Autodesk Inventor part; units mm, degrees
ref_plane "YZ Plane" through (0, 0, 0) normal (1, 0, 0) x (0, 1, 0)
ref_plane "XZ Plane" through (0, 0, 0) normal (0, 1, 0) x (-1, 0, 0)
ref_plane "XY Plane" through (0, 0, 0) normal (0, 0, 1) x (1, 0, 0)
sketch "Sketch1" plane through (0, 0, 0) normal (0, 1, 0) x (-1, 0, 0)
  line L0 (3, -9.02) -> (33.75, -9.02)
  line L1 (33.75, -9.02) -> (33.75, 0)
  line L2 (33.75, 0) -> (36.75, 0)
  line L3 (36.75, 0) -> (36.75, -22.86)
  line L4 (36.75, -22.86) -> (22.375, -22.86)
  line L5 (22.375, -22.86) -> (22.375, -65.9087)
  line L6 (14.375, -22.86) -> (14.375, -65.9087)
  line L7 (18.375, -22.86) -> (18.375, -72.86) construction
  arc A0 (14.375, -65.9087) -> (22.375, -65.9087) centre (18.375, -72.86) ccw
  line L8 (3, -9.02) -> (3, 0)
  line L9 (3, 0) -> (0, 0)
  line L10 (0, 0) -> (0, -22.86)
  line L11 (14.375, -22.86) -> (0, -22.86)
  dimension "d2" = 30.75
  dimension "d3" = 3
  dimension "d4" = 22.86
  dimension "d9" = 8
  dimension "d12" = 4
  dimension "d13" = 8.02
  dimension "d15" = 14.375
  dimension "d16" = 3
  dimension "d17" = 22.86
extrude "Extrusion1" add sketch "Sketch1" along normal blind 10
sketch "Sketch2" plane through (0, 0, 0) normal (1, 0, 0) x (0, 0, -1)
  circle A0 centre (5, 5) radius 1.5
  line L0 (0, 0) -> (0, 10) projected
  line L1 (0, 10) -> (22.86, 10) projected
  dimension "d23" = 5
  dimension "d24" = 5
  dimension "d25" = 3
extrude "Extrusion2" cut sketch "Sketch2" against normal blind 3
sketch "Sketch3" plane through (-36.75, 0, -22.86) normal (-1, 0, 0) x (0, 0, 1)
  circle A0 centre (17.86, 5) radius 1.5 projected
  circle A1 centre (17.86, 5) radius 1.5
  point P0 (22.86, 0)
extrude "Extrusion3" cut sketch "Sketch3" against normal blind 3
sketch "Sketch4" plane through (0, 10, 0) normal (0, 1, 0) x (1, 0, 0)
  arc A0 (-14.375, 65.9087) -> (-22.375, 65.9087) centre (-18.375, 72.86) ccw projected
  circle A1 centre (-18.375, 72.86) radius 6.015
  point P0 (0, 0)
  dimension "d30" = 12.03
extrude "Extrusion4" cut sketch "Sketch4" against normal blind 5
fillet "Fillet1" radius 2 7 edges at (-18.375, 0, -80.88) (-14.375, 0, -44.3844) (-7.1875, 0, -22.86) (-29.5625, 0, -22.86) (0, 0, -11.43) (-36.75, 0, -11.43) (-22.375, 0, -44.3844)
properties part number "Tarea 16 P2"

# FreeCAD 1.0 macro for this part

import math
import FreeCAD as App
import Part
import Sketcher


def edges_at(feature, points):
    """Names of the edges that pass closest to the given points."""
    edges = feature.Shape.Edges
    near = lambda p: min(range(len(edges)), key=lambda i: edges[i].distToShape(Part.Vertex(*p))[0])
    return sorted({f"Edge{near(p) + 1}" for p in points})

doc = App.newDocument("Part")
body = doc.addObject("PartDesign::Body", "Body")

# Sketch on XZ plane
sketch1 = body.newObject("Sketcher::SketchObject", "Sketch")
sketch1.AttachmentSupport = (doc.getObject("XZ_Plane"), [""])
sketch1.MapMode = "FlatFace"
sketch1.addGeometry(Part.LineSegment(App.Vector(-33.8, -9, 0), App.Vector(-3, -9, 0)), False)
sketch1.addGeometry(Part.LineSegment(App.Vector(-3, -9, 0), App.Vector(-3, 0, 0)), False)
sketch1.addGeometry(Part.LineSegment(App.Vector(-3, 0, 0), App.Vector(0, 0, 0)), False)
sketch1.addGeometry(Part.LineSegment(App.Vector(0, 0, 0), App.Vector(0, -22.9, 0)), False)
sketch1.addGeometry(Part.LineSegment(App.Vector(0, -22.9, 0), App.Vector(-14.4, -22.9, 0)), False)
sketch1.addGeometry(Part.LineSegment(App.Vector(-14.4, -22.9, 0), App.Vector(-14.4, -65.9, 0)), False)
sketch1.addGeometry(Part.ArcOfCircle(Part.Circle(App.Vector(-18.4, -72.9, 0), App.Vector(0, 0, 1), 8), math.radians(120), math.radians(420)), False)
sketch1.addGeometry(Part.LineSegment(App.Vector(-22.4, -65.9, 0), App.Vector(-22.4, -22.9, 0)), False)
sketch1.addGeometry(Part.LineSegment(App.Vector(-22.4, -22.9, 0), App.Vector(-36.8, -22.9, 0)), False)
sketch1.addGeometry(Part.LineSegment(App.Vector(-36.8, -22.9, 0), App.Vector(-36.8, 0, 0)), False)
sketch1.addGeometry(Part.LineSegment(App.Vector(-36.8, 0, 0), App.Vector(-33.8, 0, 0)), False)
sketch1.addGeometry(Part.LineSegment(App.Vector(-33.8, 0, 0), App.Vector(-33.8, -9, 0)), False)
sketch1.addConstraint(Sketcher.Constraint("Coincident", 0, 2, 1, 1))
sketch1.addConstraint(Sketcher.Constraint("Coincident", 1, 2, 2, 1))
sketch1.addConstraint(Sketcher.Constraint("Coincident", 2, 2, 3, 1))
sketch1.addConstraint(Sketcher.Constraint("Coincident", 3, 2, 4, 1))
sketch1.addConstraint(Sketcher.Constraint("Coincident", 4, 2, 5, 1))
sketch1.addConstraint(Sketcher.Constraint("Coincident", 5, 2, 6, 2))
sketch1.addConstraint(Sketcher.Constraint("Coincident", 6, 1, 7, 1))
sketch1.addConstraint(Sketcher.Constraint("Coincident", 7, 2, 8, 1))
sketch1.addConstraint(Sketcher.Constraint("Coincident", 8, 2, 9, 1))
sketch1.addConstraint(Sketcher.Constraint("Coincident", 9, 2, 10, 1))
sketch1.addConstraint(Sketcher.Constraint("Coincident", 10, 2, 11, 1))
sketch1.addConstraint(Sketcher.Constraint("Coincident", 11, 2, 0, 1))
sketch1.addConstraint(Sketcher.Constraint("Horizontal", 0))
sketch1.addConstraint(Sketcher.Constraint("Vertical", 1))
sketch1.addConstraint(Sketcher.Constraint("Horizontal", 2))
sketch1.addConstraint(Sketcher.Constraint("Vertical", 3))
sketch1.addConstraint(Sketcher.Constraint("Horizontal", 4))
sketch1.addConstraint(Sketcher.Constraint("Vertical", 5))
sketch1.addConstraint(Sketcher.Constraint("Vertical", 7))
sketch1.addConstraint(Sketcher.Constraint("Horizontal", 8))
sketch1.addConstraint(Sketcher.Constraint("Vertical", 9))
sketch1.addConstraint(Sketcher.Constraint("Horizontal", 10))
sketch1.addConstraint(Sketcher.Constraint("Vertical", 11))
sketch1.addConstraint(Sketcher.Constraint("Coincident", 2, 2, -1, 1))
sketch1.addConstraint(Sketcher.Constraint("PointOnObject", 9, 2, -1))
sketch1.addConstraint(Sketcher.Constraint("Horizontal", 5, 2, 6, 1))
sketch1.addConstraint(Sketcher.Constraint("Horizontal", 4, 2, 7, 2))
sketch1.addConstraint(Sketcher.Constraint("Equal", 4, 8))
sketch1.addConstraint(Sketcher.Constraint("Equal", 2, 10))
sketch1.addConstraint(Sketcher.Constraint("DistanceX", 2, 1, 2, 2, 3.0))
sketch1.addConstraint(Sketcher.Constraint("Radius", 6, 8.02))
sketch1.addConstraint(Sketcher.Constraint("DistanceX", 6, 3, 4, 2, 4.0))
sketch1.addConstraint(Sketcher.Constraint("DistanceX", 0, 1, 0, 2, 30.75))
sketch1.addConstraint(Sketcher.Constraint("DistanceY", 3, 2, 3, 1, 22.86))
sketch1.addConstraint(Sketcher.Constraint("DistanceY", 6, 3, 3, 2, 50.0))
sketch1.addConstraint(Sketcher.Constraint("DistanceY", 1, 1, 1, 2, 9.02))
pad1 = body.newObject("PartDesign::Pad", "Pad")
pad1.Profile = sketch1
pad1.Length = 10
pad1.Reversed = True

# Sketch on YZ plane
sketch2 = body.newObject("Sketcher::SketchObject", "Sketch001")
sketch2.AttachmentSupport = (doc.getObject("YZ_Plane"), [""])
sketch2.MapMode = "FlatFace"
sketch2.addGeometry(Part.Circle(App.Vector(5, -5, 0), App.Vector(0, 0, 1), 1.5), False)
sketch2.addConstraint(Sketcher.Constraint("Diameter", 0, 3.0))
sketch2.addConstraint(Sketcher.Constraint("DistanceX", -1, 1, 0, 3, 5.0))
sketch2.addConstraint(Sketcher.Constraint("DistanceY", 0, 3, -1, 1, 5.0))
pocket1 = body.newObject("PartDesign::Pocket", "Pocket")
pocket1.Profile = sketch2
pocket1.Length = 3

# Sketch on YZ plane
sketch3 = body.newObject("Sketcher::SketchObject", "Sketch002")
sketch3.AttachmentSupport = (doc.getObject("YZ_Plane"), [""])
sketch3.MapMode = "FlatFace"
sketch3.AttachmentOffset = App.Placement(App.Vector(0, 0, -36.75), App.Rotation())
sketch3.addGeometry(Part.Circle(App.Vector(5, -5, 0), App.Vector(0, 0, 1), 1.5), False)
sketch3.addConstraint(Sketcher.Constraint("Diameter", 0, 3.0))
sketch3.addConstraint(Sketcher.Constraint("DistanceX", -1, 1, 0, 3, 5.0))
sketch3.addConstraint(Sketcher.Constraint("DistanceY", 0, 3, -1, 1, 5.0))
pocket2 = body.newObject("PartDesign::Pocket", "Pocket001")
pocket2.Profile = sketch3
pocket2.Length = 3
pocket2.Reversed = True

# Sketch on XZ plane
sketch4 = body.newObject("Sketcher::SketchObject", "Sketch003")
sketch4.AttachmentSupport = (doc.getObject("XZ_Plane"), [""])
sketch4.MapMode = "FlatFace"
sketch4.AttachmentOffset = App.Placement(App.Vector(0, 0, -10), App.Rotation())
sketch4.addGeometry(Part.Circle(App.Vector(-18, -73, 0), App.Vector(0, 0, 1), 6), False)
sketch4.addConstraint(Sketcher.Constraint("Diameter", 0, 12.03))
sketch4.addConstraint(Sketcher.Constraint("DistanceY", 0, 3, -1, 1, 72.86))
sketch4.addConstraint(Sketcher.Constraint("DistanceX", 0, 3, -1, 1, 18.375))
pocket3 = body.newObject("PartDesign::Pocket", "Pocket002")
pocket3.Profile = sketch4
pocket3.Length = 5
pocket3.Reversed = True
doc.recompute()

fillet = body.newObject("PartDesign::Fillet", "Fillet")
fillet.Base = (pocket3, edges_at(pocket3, [
    (-18.375, 0, -80.88),
    (-14.375, 0, -44.384),
    (-7.188, 0, -22.86),
    (-29.562, 0, -22.86),
    (0, 0, -11.43),
    (-36.75, 0, -11.43),
    (-22.375, 0, -44.384),
]))
fillet.Radius = 2

doc.recompute()
